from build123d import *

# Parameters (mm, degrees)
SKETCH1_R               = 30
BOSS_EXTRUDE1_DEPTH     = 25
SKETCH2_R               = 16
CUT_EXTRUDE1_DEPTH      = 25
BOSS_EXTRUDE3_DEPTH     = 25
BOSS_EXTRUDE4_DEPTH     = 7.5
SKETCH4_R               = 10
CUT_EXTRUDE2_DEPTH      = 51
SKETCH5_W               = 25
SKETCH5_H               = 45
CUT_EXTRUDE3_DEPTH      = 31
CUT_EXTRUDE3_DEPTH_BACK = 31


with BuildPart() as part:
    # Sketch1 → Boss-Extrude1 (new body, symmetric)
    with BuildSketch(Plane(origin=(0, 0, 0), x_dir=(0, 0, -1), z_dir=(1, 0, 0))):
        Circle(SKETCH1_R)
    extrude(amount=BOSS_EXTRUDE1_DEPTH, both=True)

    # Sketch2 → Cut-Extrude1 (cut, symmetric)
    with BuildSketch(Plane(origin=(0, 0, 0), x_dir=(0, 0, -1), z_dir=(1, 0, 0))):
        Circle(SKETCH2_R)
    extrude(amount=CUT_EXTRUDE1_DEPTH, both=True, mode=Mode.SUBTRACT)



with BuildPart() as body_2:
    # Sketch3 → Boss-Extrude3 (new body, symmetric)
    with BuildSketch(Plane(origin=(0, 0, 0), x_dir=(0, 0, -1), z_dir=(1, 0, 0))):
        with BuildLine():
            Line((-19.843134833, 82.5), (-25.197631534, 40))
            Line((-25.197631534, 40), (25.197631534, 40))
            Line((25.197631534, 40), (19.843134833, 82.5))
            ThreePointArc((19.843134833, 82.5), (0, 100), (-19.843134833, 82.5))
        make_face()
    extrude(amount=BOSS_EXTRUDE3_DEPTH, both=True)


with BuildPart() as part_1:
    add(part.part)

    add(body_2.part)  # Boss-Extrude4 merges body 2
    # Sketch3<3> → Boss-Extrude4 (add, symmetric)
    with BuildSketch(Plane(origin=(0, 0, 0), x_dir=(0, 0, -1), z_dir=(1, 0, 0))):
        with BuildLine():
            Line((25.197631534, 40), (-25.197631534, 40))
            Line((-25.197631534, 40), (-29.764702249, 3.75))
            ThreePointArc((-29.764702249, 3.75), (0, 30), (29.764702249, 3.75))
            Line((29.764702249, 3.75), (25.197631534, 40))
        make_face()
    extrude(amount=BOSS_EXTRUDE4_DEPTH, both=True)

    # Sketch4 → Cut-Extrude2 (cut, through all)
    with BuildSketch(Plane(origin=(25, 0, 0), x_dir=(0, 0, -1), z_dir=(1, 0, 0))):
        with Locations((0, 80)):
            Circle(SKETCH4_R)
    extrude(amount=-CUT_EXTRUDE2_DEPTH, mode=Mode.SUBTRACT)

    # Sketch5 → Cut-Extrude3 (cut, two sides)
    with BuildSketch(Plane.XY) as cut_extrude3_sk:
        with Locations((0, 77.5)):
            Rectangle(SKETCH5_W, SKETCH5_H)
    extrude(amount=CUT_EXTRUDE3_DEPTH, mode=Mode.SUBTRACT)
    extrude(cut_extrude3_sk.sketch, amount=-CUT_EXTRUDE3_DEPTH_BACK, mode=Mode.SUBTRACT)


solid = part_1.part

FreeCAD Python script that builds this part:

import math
import FreeCAD as App
import Part
import Sketcher

V = App.Vector

doc = App.newDocument("Part")
body = doc.addObject("PartDesign::Body", "Body")

sketch1 = doc.addObject("Sketcher::SketchObject", "Sketch")
body.addObject(sketch1)
sketch1.AttachmentSupport = (doc.YZ_Plane, [""])
sketch1.MapMode = "FlatFace"
sketch1.addGeometry(Part.Circle(V(0, 0, 0), V(0, 0, 1), 30), False)
sketch1.addConstraint([
    Sketcher.Constraint("Coincident", 0, 3, -1, 1),
    Sketcher.Constraint("Diameter", 0, 60.0),
])
pad1 = doc.addObject("PartDesign::Pad", "Pad")
body.addObject(pad1)
pad1.Profile = sketch1
pad1.Length = 50
pad1.Midplane = True

sketch2 = doc.addObject("Sketcher::SketchObject", "Sketch001")
body.addObject(sketch2)
sketch2.AttachmentSupport = (doc.YZ_Plane, [""])
sketch2.MapMode = "FlatFace"
sketch2.addGeometry(Part.Circle(V(0, 0, 0), V(0, 0, 1), 16), False)
sketch2.addConstraint([
    Sketcher.Constraint("Coincident", 0, 3, -1, 1),
    Sketcher.Constraint("Diameter", 0, 32.0),
])
pocket1 = doc.addObject("PartDesign::Pocket", "Pocket")
body.addObject(pocket1)
pocket1.Profile = sketch2
pocket1.Length = 50
pocket1.Midplane = True
body2 = doc.addObject("PartDesign::Body", "Body001")

sketch3 = doc.addObject("Sketcher::SketchObject", "Sketch002")
body2.addObject(sketch3)
sketch3.AttachmentSupport = (doc.getObject("YZ_Plane001"), [""])
sketch3.MapMode = "FlatFace"
sketch3.addGeometry([
    Part.LineSegment(V(82, 20, 0), V(40, 25, 0)),
    Part.LineSegment(V(40, 25, 0), V(40, -25, 0)),
    Part.LineSegment(V(40, -25, 0), V(82, -20, 0)),
    Part.ArcOfCircle(Part.Circle(V(80, 0, 0), V(0, 0, 1), 20), math.radians(-83), math.radians(83)),
], False)
sketch3.addConstraint([
    Sketcher.Constraint("Coincident", 0, 2, 1, 1),
    Sketcher.Constraint("Coincident", 1, 2, 2, 1),
    Sketcher.Constraint("Tangent", 2, 2, 3, 1),
    Sketcher.Constraint("Tangent", 3, 2, 0, 1),
    Sketcher.Constraint("Vertical", 1),
    Sketcher.Constraint("Symmetric", 2, 2, 3, 2, -1),
    Sketcher.Constraint("Radius", 3, 20.0),
    Sketcher.Constraint("DistanceX", -1, 1, 3, 3, 80.0),
    Sketcher.Constraint("DistanceX", -1, 1, 0, 2, 40.0),
    Sketcher.Constraint("DistanceX", -1, 1, 2, 2, 82.5),
])
pad2 = doc.addObject("PartDesign::Pad", "Pad001")
body2.addObject(pad2)
pad2.Profile = sketch3
pad2.Length = 50
pad2.Midplane = True
body.AllowCompound = True
doc.recompute()

boolean = doc.addObject("PartDesign::Boolean", "Boolean")
body.addObject(boolean)
boolean.Type = "Fuse"
boolean.addObjects([body2])

sketch4 = doc.addObject("Sketcher::SketchObject", "Sketch003")
body.addObject(sketch4)
sketch4.AttachmentSupport = (doc.YZ_Plane, [""])
sketch4.MapMode = "FlatFace"
sketch4.addGeometry([
    Part.LineSegment(V(40, -25, 0), V(40, 25, 0)),
    Part.LineSegment(V(40, 25, 0), V(4, 30, 0)),
    Part.ArcOfCircle(Part.Circle(V(0, 0, 0), V(0, 0, 1), 30), math.radians(-83), math.radians(83)),
    Part.LineSegment(V(4, -30, 0), V(40, -25, 0)),
], False)
sketch4.addConstraint([
    Sketcher.Constraint("Coincident", 0, 2, 1, 1),
    Sketcher.Constraint("Tangent", 1, 2, 2, 2),
    Sketcher.Constraint("Tangent", 2, 1, 3, 1),
    Sketcher.Constraint("Coincident", 3, 2, 0, 1),
    Sketcher.Constraint("Vertical", 0),
    Sketcher.Constraint("Coincident", 2, 3, -1, 1),
    Sketcher.Constraint("Vertical", 1, 2, 2, 1),
    Sketcher.Constraint("Radius", 2, 30.0),
    Sketcher.Constraint("DistanceX", -1, 1, 0, 2, 40.0),
    Sketcher.Constraint("DistanceX", -1, 1, 1, 2, 3.75),
])
pad3 = doc.addObject("PartDesign::Pad", "Pad002")
body.addObject(pad3)
pad3.Profile = sketch4
pad3.Length = 15
pad3.Midplane = True

sketch5 = doc.addObject("Sketcher::SketchObject", "Sketch004")
body.addObject(sketch5)
sketch5.AttachmentSupport = (doc.YZ_Plane, [""])
sketch5.MapMode = "FlatFace"
sketch5.AttachmentOffset = App.Placement(V(0, 0, 25), App.Rotation())
sketch5.addGeometry(Part.Circle(V(80, 0, 0), V(0, 0, 1), 10), False)
sketch5.addConstraint([
    Sketcher.Constraint("PointOnObject", 0, 3, -1),
    Sketcher.Constraint("Diameter", 0, 20.0),
    Sketcher.Constraint("DistanceX", -1, 1, 0, 3, 80.0),
])
pocket2 = doc.addObject("PartDesign::Pocket", "Pocket001")
body.addObject(pocket2)
pocket2.Profile = sketch5
pocket2.Type = "ThroughAll"

sketch6 = doc.addObject("Sketcher::SketchObject", "Sketch005")
body.addObject(sketch6)
sketch6.AttachmentSupport = (doc.XY_Plane, [""])
sketch6.MapMode = "FlatFace"
sketch6.addGeometry([
    Part.LineSegment(V(-12, 100, 0), V(-12, 55, 0)),
    Part.LineSegment(V(-12, 55, 0), V(12, 55, 0)),
    Part.LineSegment(V(12, 55, 0), V(12, 100, 0)),
    Part.LineSegment(V(12, 100, 0), V(-12, 100, 0)),
], False)
sketch6.addConstraint([
    Sketcher.Constraint("Coincident", 0, 2, 1, 1),
    Sketcher.Constraint("Coincident", 1, 2, 2, 1),
    Sketcher.Constraint("Coincident", 2, 2, 3, 1),
    Sketcher.Constraint("Coincident", 3, 2, 0, 1),
    Sketcher.Constraint("Vertical", 0),
    Sketcher.Constraint("Horizontal", 1),
    Sketcher.Constraint("Vertical", 2),
    Sketcher.Constraint("Horizontal", 3),
    Sketcher.Constraint("DistanceX", 1, 1, 1, 2, 25.0),
    Sketcher.Constraint("DistanceY", 0, 2, 0, 1, 45.0),
    Sketcher.Constraint("DistanceY", -1, 1, 0, 2, 55.0),
    Sketcher.Constraint("DistanceX", 0, 2, -1, 1, 12.5),
])
pocket3 = doc.addObject("PartDesign::Pocket", "Pocket002")
body.addObject(pocket3)
pocket3.Profile = sketch6
pocket3.Type = "ThroughAll"
pocket3.Midplane = True

doc.recompute()
